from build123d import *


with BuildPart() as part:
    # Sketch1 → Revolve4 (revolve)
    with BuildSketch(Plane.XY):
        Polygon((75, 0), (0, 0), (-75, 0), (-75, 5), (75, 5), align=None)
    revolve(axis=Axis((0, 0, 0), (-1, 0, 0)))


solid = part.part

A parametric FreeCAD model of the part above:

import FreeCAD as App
import Part
import Sketcher

V = App.Vector
Q = App.Units.Quantity

doc = App.newDocument("Part")
body = doc.addObject("PartDesign::Body", "Body")

# Sketch on XY plane
sketch1 = body.newObject("Sketcher::SketchObject", "Sketch")
sketch1.AttachmentSupport = (doc.getObject("XY_Plane"), [""])
sketch1.MapMode = "FlatFace"
sketch1.addGeometry([
    Part.LineSegment(V(-75, 0, 0), V(75, 0, 0)),
    Part.LineSegment(V(75, 0, 0), V(75, 5, 0)),
    Part.LineSegment(V(75, 5, 0), V(-75, 5, 0)),
    Part.LineSegment(V(-75, 5, 0), V(-75, 0, 0)),
], False)
sketch1.addConstraint([
    Sketcher.Constraint("Coincident", 0, 2, 1, 1),
    Sketcher.Constraint("Coincident", 1, 2, 2, 1),
    Sketcher.Constraint("Coincident", 2, 2, 3, 1),
    Sketcher.Constraint("Coincident", 3, 2, 0, 1),
    Sketcher.Constraint("Horizontal", 0),
    Sketcher.Constraint("Vertical", 1),
    Sketcher.Constraint("Horizontal", 2),
    Sketcher.Constraint("Vertical", 3),
    Sketcher.Constraint("Symmetric", 0, 2, 3, 2, -1, 1),
    Sketcher.Constraint("DistanceX", 0, 1, 0, 2, Q("150 mm")),
    Sketcher.Constraint("DistanceY", 1, 1, 1, 2, Q("5 mm")),
])
revolution = body.newObject("PartDesign::Revolution", "Revolution")
revolution.Profile = sketch1
revolution.ReferenceAxis = (sketch1, ["H_Axis"])
revolution.Angle = 360

doc.recompute()
